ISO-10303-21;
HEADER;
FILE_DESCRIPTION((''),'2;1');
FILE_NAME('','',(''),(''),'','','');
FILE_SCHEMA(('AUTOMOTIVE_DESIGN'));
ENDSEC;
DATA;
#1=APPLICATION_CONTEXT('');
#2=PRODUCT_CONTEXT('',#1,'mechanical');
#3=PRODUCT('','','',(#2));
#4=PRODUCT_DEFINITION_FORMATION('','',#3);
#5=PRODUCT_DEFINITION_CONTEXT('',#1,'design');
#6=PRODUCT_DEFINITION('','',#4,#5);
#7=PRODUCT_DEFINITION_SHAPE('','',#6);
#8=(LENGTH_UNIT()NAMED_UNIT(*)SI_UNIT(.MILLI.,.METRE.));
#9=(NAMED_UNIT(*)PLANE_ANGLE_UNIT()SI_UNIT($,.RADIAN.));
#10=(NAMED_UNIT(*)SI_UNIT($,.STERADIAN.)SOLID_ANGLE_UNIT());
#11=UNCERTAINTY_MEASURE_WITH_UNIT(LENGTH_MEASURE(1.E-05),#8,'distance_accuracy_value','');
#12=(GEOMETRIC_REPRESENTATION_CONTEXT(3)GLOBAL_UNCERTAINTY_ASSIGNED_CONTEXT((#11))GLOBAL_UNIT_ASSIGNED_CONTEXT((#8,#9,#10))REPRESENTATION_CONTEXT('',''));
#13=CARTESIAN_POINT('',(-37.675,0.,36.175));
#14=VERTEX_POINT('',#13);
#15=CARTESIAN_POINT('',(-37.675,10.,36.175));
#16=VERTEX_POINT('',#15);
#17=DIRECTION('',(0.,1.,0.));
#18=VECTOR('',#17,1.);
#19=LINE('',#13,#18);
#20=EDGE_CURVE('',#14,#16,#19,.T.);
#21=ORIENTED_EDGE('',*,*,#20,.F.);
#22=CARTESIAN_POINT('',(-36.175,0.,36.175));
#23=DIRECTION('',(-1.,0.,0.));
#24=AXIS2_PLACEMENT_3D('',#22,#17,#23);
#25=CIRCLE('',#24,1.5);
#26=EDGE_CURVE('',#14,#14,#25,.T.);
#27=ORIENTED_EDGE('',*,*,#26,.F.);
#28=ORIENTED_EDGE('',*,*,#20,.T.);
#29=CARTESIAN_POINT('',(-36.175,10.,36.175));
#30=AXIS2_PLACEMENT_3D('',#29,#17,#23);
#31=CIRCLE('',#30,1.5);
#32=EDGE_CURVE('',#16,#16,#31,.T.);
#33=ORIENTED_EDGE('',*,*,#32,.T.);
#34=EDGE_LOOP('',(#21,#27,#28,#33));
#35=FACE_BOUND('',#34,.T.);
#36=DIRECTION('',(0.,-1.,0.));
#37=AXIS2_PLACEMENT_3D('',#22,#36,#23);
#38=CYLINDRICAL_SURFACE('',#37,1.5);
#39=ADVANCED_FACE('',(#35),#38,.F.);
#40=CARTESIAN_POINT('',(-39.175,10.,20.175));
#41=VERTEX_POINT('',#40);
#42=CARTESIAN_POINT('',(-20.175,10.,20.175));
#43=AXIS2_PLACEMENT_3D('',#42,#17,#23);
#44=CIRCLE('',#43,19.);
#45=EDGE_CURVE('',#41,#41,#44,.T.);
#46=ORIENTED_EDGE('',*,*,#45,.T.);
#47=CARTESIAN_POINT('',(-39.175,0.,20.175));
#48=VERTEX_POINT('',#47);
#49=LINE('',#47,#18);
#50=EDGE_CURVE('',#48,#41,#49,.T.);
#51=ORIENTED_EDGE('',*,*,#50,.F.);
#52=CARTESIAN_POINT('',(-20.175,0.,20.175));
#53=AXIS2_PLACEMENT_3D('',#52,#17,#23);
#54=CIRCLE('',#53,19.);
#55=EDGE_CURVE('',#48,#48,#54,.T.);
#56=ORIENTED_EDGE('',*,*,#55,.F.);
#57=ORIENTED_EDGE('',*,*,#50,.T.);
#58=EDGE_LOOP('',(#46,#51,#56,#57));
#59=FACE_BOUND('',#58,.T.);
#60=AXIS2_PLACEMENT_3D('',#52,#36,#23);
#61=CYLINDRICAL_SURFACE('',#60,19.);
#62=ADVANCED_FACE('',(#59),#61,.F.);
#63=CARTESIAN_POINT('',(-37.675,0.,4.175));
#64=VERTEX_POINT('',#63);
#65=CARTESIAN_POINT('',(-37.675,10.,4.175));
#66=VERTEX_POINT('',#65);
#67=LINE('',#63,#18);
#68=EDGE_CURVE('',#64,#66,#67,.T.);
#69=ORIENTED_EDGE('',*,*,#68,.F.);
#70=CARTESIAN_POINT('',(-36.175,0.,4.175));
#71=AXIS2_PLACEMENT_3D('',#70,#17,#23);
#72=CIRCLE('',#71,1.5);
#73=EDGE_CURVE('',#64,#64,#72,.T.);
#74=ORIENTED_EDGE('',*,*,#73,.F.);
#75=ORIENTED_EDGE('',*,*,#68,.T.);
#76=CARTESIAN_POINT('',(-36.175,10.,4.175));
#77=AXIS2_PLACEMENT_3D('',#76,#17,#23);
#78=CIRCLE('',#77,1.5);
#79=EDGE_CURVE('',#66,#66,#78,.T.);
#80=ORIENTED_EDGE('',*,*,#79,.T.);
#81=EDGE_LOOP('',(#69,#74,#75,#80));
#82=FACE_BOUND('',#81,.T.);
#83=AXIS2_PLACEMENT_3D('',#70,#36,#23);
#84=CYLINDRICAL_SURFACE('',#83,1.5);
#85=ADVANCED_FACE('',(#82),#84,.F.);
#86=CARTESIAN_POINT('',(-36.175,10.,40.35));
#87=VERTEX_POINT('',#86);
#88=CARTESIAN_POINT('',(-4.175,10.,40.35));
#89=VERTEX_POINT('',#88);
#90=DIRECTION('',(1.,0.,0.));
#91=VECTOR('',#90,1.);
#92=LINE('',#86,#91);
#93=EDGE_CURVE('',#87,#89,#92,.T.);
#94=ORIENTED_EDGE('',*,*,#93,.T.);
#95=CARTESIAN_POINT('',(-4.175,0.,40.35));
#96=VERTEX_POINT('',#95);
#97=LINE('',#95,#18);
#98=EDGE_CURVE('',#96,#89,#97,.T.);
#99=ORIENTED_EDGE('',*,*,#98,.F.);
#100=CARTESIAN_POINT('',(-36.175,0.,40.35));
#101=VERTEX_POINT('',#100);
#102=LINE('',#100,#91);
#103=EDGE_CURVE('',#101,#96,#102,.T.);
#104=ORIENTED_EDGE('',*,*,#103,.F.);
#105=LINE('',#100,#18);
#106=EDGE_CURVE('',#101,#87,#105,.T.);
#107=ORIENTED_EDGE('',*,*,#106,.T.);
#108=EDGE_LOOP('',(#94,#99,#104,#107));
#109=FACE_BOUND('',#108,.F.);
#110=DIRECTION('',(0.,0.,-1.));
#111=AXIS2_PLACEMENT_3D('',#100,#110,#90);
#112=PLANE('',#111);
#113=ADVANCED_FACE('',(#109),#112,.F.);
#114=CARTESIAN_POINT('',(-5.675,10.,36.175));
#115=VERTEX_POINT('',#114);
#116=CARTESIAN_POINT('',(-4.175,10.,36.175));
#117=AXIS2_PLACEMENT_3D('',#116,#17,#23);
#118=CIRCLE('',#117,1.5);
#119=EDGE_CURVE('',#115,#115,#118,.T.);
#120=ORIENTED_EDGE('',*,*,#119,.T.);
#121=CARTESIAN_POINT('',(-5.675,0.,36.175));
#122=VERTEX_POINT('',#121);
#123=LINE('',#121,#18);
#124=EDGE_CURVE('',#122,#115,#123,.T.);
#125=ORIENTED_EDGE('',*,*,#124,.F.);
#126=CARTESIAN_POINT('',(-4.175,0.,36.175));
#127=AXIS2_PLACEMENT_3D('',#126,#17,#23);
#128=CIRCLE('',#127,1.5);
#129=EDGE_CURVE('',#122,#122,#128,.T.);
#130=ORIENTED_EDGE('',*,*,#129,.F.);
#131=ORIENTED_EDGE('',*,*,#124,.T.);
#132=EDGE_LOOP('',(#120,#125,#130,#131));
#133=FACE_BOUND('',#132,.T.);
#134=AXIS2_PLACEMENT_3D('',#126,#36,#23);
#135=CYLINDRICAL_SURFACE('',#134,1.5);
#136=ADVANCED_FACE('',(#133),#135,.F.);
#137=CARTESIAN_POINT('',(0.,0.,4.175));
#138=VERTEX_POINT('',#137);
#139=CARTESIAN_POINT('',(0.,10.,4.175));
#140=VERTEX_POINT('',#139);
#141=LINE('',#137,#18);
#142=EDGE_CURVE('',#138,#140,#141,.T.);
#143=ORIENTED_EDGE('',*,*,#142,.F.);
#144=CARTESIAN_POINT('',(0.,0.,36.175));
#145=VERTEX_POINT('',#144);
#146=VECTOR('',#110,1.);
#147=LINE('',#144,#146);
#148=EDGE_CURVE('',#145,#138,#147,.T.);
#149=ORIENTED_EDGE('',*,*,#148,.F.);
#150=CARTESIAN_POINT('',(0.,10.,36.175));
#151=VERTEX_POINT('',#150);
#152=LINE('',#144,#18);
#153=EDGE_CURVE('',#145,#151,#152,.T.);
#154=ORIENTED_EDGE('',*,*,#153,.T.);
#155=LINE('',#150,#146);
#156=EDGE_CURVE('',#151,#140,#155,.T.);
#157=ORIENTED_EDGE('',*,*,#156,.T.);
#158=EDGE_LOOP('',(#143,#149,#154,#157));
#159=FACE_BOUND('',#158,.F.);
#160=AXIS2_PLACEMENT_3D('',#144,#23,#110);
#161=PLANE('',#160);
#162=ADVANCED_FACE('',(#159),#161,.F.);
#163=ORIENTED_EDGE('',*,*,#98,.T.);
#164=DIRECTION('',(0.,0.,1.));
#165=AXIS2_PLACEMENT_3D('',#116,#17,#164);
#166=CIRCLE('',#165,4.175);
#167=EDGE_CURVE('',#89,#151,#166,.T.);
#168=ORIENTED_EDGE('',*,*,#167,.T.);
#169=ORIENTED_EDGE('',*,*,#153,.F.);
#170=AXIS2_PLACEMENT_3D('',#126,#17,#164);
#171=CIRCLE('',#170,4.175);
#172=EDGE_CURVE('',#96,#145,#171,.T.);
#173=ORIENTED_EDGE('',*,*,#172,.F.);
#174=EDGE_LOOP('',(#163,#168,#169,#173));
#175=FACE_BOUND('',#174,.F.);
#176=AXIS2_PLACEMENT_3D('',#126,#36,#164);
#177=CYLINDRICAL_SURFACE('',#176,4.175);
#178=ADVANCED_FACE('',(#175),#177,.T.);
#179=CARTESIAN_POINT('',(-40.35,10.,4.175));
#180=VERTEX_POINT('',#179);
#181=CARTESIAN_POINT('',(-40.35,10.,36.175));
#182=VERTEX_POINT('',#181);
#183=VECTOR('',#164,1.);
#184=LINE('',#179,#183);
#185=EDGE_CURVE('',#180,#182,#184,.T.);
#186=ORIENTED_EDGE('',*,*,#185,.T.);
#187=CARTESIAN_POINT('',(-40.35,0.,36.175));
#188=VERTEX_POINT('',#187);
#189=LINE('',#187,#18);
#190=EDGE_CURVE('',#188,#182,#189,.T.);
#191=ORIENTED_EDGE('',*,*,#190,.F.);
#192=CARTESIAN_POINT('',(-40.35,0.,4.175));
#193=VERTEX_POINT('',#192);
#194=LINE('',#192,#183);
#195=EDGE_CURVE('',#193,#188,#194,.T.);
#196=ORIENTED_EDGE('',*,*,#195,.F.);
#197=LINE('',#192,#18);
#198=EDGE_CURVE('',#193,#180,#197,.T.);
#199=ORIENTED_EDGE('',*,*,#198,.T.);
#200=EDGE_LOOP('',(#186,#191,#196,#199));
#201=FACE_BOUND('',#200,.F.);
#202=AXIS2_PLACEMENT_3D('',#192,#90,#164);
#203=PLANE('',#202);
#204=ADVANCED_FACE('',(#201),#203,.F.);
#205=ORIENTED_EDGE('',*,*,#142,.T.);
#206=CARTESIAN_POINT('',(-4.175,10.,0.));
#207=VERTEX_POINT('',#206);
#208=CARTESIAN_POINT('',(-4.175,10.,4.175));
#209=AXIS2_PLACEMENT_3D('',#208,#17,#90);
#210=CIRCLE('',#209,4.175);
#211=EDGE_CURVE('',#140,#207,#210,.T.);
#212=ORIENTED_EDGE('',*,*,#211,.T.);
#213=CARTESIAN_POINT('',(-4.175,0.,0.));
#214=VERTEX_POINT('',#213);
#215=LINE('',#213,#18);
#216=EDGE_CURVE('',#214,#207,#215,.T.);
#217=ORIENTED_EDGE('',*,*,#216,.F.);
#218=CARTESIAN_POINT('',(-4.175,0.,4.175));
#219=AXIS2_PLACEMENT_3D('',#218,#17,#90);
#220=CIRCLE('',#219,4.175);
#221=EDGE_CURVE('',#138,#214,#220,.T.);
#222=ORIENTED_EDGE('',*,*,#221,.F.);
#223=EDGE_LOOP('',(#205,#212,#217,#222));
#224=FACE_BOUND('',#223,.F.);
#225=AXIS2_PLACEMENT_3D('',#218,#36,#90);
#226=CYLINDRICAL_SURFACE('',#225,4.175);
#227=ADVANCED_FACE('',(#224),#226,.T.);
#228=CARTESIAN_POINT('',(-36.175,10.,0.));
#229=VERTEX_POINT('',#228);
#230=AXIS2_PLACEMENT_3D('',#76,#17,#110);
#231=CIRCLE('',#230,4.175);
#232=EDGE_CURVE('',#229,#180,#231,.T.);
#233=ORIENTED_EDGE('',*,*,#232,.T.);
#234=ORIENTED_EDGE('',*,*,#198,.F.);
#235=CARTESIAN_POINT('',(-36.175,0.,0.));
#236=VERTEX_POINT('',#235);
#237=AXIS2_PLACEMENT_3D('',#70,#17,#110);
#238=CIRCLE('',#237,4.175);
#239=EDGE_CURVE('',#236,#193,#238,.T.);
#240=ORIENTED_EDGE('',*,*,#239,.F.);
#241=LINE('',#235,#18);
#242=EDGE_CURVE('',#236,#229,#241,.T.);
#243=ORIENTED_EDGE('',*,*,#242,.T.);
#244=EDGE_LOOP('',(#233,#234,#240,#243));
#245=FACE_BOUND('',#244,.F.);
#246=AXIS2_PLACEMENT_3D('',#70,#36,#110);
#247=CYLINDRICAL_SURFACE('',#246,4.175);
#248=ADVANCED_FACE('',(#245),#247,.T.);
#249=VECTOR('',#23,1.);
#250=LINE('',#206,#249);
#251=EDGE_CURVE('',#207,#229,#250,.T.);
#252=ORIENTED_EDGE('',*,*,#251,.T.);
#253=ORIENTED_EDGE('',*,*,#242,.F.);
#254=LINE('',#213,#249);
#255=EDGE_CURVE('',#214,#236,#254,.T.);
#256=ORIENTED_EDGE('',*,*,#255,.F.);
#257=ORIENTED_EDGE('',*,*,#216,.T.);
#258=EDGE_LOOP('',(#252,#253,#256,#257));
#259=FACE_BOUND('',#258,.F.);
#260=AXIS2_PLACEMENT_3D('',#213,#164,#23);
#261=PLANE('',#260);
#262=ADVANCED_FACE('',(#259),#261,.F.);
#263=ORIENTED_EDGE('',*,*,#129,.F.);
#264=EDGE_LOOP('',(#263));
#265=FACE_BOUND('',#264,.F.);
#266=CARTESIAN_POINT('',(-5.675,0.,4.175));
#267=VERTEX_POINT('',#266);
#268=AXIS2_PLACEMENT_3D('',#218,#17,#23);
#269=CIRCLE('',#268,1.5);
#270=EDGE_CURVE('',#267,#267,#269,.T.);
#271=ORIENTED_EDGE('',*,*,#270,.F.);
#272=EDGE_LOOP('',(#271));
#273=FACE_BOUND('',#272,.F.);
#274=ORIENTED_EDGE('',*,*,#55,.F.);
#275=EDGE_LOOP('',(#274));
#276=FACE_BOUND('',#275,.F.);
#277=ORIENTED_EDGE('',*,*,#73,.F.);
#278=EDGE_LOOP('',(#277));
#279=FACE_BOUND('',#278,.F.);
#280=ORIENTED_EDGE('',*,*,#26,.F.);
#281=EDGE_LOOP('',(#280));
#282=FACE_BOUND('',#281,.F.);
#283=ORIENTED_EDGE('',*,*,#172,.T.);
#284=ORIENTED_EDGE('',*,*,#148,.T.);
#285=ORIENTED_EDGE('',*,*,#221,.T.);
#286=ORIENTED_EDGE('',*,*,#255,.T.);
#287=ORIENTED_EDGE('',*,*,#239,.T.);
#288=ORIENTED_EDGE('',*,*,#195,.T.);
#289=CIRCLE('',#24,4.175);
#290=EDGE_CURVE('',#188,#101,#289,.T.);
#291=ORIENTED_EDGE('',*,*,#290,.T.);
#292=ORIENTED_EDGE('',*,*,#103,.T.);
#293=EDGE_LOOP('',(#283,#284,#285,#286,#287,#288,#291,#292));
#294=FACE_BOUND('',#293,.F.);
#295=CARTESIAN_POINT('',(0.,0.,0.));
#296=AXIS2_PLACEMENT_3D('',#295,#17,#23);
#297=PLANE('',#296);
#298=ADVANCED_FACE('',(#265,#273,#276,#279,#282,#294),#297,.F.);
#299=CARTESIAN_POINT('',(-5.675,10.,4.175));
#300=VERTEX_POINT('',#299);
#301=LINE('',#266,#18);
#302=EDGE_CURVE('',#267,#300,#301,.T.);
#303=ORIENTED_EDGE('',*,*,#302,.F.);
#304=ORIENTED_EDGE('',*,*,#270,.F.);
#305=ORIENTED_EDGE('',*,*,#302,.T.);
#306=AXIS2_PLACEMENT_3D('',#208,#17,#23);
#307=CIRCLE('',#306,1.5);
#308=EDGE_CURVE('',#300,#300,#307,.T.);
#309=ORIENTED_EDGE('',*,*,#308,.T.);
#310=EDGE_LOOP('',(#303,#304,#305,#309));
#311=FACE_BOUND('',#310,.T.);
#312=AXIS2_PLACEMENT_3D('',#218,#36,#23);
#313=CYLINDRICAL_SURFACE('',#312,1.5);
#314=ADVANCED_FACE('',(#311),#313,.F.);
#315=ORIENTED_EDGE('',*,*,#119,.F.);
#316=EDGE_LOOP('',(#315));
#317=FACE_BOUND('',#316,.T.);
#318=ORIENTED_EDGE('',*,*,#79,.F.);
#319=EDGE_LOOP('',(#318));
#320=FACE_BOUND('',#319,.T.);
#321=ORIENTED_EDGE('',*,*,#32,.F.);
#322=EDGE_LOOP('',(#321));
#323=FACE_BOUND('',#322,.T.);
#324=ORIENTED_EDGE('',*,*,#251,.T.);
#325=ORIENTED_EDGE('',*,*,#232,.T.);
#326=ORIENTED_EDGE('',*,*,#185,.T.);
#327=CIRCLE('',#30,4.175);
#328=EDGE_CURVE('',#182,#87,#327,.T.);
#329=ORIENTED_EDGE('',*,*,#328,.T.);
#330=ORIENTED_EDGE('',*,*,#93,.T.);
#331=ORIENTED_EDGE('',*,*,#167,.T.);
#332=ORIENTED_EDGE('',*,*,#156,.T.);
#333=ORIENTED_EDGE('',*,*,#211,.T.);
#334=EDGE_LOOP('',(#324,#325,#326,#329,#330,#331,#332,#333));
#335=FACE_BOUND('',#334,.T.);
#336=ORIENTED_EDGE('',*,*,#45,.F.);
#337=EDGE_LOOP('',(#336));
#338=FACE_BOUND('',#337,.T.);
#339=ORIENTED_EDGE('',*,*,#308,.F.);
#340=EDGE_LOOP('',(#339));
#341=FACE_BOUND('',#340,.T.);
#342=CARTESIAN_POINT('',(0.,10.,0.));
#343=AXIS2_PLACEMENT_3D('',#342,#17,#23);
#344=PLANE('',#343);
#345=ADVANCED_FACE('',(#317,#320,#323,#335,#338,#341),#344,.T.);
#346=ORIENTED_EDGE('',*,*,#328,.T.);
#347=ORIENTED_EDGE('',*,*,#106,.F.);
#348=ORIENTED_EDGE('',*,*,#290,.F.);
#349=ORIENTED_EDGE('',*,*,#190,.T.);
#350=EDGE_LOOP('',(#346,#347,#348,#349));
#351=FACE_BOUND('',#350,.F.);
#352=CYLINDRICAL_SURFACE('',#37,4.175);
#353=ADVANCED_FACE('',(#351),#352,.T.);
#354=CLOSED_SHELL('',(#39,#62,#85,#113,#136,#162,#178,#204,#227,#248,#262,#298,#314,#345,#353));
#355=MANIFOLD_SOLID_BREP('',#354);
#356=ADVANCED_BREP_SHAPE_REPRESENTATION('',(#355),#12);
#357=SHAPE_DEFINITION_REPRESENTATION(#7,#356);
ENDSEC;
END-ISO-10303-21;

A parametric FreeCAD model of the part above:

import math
import FreeCAD as App
import Part
import Sketcher
Q = App.Units.Quantity

doc = App.newDocument("Part")
body = doc.addObject("PartDesign::Body", "Body")

# Sketch on XZ plane
sketch1 = doc.addObject("Sketcher::SketchObject", "Sketch")
body.addObject(sketch1)
sketch1.AttachmentSupport = (doc.XZ_Plane, [""])
sketch1.MapMode = "FlatFace"
sketch1.addGeometry([
    Part.ArcOfCircle(Part.Circle(App.Vector(-4.2, 4.2, 0), App.Vector(0, 0, 1), 4.2), math.radians(-90), math.radians(0)),  # 0
    Part.LineSegment(App.Vector(-4.2, 0, 0), App.Vector(-36.2, 0, 0)),  # 1
    Part.ArcOfCircle(Part.Circle(App.Vector(-36.2, 4.2, 0), App.Vector(0, 0, 1), 4.2), math.radians(180), math.radians(270)),  # 2
    Part.LineSegment(App.Vector(-40.4, 4.2, 0), App.Vector(-40.4, 36.2, 0)),  # 3
    Part.ArcOfCircle(Part.Circle(App.Vector(-36.2, 36.2, 0), App.Vector(0, 0, 1), 4.2), math.radians(90), math.radians(180)),  # 4
    Part.LineSegment(App.Vector(-36.2, 40.4, 0), App.Vector(-4.2, 40.4, 0)),  # 5
    Part.ArcOfCircle(Part.Circle(App.Vector(-4.2, 36.2, 0), App.Vector(0, 0, 1), 4.2), math.radians(0), math.radians(90)),  # 6
    Part.LineSegment(App.Vector(0, 36.2, 0), App.Vector(0, 4.2, 0)),  # 7
    Part.Circle(App.Vector(-4.2, 4.2, 0), App.Vector(0, 0, 1), 1.5),  # 8
    Part.Circle(App.Vector(-20.2, 20.2, 0), App.Vector(0, 0, 1), 19),  # 9
    Part.Circle(App.Vector(-36.2, 4.2, 0), App.Vector(0, 0, 1), 1.5),  # 10
    Part.Circle(App.Vector(-4.2, 36.2, 0), App.Vector(0, 0, 1), 1.5),  # 11
    Part.Circle(App.Vector(-36.2, 36.2, 0), App.Vector(0, 0, 1), 1.5),  # 12
], False)
sketch1.addConstraint([
    Sketcher.Constraint("Tangent", 0, 1, 1, 1),
    Sketcher.Constraint("Tangent", 1, 2, 2, 2),
    Sketcher.Constraint("Tangent", 2, 1, 3, 1),
    Sketcher.Constraint("Tangent", 3, 2, 4, 2),
    Sketcher.Constraint("Tangent", 4, 1, 5, 1),
    Sketcher.Constraint("Tangent", 5, 2, 6, 2),
    Sketcher.Constraint("Tangent", 6, 1, 7, 1),
    Sketcher.Constraint("Tangent", 7, 2, 0, 2),
    Sketcher.Constraint("Horizontal", 1),
    Sketcher.Constraint("Vertical", 3),
    Sketcher.Constraint("Horizontal", 5),
    Sketcher.Constraint("Vertical", 7),
    Sketcher.Constraint("Coincident", 8, 3, 0, 3),
    Sketcher.Constraint("Coincident", 10, 3, 2, 3),
    Sketcher.Constraint("Coincident", 11, 3, 6, 3),
    Sketcher.Constraint("Coincident", 12, 3, 4, 3),
    Sketcher.Constraint("Equal", 0, 2),
    Sketcher.Constraint("Equal", 2, 4),
    Sketcher.Constraint("Equal", 4, 6),
    Sketcher.Constraint("Equal", 8, 10),
    Sketcher.Constraint("Equal", 10, 11),
    Sketcher.Constraint("Equal", 11, 12),
    Sketcher.Constraint("PointOnObject", 0, 1, -1),
    Sketcher.Constraint("PointOnObject", 6, 1, -2),
    Sketcher.Constraint("Equal", 5, 3),
    Sketcher.Constraint("Diameter", 8, Q("3 mm")),
    Sketcher.Constraint("Diameter", 9, Q("38 mm")),
    Sketcher.Constraint("DistanceX", 1, 2, 1, 1, Q("32 mm")),
    Sketcher.Constraint("Radius", 0, Q("4.175 mm")),
    Sketcher.Constraint("DistanceX", 9, 3, -1, 1, Q("20.175 mm")),
    Sketcher.Constraint("DistanceY", -1, 1, 9, 3, Q("20.175 mm")),
])
pad1 = doc.addObject("PartDesign::Pad", "Pad")
body.addObject(pad1)
pad1.Profile = sketch1
pad1.Length = 10
pad1.Reversed = True

doc.recompute()
